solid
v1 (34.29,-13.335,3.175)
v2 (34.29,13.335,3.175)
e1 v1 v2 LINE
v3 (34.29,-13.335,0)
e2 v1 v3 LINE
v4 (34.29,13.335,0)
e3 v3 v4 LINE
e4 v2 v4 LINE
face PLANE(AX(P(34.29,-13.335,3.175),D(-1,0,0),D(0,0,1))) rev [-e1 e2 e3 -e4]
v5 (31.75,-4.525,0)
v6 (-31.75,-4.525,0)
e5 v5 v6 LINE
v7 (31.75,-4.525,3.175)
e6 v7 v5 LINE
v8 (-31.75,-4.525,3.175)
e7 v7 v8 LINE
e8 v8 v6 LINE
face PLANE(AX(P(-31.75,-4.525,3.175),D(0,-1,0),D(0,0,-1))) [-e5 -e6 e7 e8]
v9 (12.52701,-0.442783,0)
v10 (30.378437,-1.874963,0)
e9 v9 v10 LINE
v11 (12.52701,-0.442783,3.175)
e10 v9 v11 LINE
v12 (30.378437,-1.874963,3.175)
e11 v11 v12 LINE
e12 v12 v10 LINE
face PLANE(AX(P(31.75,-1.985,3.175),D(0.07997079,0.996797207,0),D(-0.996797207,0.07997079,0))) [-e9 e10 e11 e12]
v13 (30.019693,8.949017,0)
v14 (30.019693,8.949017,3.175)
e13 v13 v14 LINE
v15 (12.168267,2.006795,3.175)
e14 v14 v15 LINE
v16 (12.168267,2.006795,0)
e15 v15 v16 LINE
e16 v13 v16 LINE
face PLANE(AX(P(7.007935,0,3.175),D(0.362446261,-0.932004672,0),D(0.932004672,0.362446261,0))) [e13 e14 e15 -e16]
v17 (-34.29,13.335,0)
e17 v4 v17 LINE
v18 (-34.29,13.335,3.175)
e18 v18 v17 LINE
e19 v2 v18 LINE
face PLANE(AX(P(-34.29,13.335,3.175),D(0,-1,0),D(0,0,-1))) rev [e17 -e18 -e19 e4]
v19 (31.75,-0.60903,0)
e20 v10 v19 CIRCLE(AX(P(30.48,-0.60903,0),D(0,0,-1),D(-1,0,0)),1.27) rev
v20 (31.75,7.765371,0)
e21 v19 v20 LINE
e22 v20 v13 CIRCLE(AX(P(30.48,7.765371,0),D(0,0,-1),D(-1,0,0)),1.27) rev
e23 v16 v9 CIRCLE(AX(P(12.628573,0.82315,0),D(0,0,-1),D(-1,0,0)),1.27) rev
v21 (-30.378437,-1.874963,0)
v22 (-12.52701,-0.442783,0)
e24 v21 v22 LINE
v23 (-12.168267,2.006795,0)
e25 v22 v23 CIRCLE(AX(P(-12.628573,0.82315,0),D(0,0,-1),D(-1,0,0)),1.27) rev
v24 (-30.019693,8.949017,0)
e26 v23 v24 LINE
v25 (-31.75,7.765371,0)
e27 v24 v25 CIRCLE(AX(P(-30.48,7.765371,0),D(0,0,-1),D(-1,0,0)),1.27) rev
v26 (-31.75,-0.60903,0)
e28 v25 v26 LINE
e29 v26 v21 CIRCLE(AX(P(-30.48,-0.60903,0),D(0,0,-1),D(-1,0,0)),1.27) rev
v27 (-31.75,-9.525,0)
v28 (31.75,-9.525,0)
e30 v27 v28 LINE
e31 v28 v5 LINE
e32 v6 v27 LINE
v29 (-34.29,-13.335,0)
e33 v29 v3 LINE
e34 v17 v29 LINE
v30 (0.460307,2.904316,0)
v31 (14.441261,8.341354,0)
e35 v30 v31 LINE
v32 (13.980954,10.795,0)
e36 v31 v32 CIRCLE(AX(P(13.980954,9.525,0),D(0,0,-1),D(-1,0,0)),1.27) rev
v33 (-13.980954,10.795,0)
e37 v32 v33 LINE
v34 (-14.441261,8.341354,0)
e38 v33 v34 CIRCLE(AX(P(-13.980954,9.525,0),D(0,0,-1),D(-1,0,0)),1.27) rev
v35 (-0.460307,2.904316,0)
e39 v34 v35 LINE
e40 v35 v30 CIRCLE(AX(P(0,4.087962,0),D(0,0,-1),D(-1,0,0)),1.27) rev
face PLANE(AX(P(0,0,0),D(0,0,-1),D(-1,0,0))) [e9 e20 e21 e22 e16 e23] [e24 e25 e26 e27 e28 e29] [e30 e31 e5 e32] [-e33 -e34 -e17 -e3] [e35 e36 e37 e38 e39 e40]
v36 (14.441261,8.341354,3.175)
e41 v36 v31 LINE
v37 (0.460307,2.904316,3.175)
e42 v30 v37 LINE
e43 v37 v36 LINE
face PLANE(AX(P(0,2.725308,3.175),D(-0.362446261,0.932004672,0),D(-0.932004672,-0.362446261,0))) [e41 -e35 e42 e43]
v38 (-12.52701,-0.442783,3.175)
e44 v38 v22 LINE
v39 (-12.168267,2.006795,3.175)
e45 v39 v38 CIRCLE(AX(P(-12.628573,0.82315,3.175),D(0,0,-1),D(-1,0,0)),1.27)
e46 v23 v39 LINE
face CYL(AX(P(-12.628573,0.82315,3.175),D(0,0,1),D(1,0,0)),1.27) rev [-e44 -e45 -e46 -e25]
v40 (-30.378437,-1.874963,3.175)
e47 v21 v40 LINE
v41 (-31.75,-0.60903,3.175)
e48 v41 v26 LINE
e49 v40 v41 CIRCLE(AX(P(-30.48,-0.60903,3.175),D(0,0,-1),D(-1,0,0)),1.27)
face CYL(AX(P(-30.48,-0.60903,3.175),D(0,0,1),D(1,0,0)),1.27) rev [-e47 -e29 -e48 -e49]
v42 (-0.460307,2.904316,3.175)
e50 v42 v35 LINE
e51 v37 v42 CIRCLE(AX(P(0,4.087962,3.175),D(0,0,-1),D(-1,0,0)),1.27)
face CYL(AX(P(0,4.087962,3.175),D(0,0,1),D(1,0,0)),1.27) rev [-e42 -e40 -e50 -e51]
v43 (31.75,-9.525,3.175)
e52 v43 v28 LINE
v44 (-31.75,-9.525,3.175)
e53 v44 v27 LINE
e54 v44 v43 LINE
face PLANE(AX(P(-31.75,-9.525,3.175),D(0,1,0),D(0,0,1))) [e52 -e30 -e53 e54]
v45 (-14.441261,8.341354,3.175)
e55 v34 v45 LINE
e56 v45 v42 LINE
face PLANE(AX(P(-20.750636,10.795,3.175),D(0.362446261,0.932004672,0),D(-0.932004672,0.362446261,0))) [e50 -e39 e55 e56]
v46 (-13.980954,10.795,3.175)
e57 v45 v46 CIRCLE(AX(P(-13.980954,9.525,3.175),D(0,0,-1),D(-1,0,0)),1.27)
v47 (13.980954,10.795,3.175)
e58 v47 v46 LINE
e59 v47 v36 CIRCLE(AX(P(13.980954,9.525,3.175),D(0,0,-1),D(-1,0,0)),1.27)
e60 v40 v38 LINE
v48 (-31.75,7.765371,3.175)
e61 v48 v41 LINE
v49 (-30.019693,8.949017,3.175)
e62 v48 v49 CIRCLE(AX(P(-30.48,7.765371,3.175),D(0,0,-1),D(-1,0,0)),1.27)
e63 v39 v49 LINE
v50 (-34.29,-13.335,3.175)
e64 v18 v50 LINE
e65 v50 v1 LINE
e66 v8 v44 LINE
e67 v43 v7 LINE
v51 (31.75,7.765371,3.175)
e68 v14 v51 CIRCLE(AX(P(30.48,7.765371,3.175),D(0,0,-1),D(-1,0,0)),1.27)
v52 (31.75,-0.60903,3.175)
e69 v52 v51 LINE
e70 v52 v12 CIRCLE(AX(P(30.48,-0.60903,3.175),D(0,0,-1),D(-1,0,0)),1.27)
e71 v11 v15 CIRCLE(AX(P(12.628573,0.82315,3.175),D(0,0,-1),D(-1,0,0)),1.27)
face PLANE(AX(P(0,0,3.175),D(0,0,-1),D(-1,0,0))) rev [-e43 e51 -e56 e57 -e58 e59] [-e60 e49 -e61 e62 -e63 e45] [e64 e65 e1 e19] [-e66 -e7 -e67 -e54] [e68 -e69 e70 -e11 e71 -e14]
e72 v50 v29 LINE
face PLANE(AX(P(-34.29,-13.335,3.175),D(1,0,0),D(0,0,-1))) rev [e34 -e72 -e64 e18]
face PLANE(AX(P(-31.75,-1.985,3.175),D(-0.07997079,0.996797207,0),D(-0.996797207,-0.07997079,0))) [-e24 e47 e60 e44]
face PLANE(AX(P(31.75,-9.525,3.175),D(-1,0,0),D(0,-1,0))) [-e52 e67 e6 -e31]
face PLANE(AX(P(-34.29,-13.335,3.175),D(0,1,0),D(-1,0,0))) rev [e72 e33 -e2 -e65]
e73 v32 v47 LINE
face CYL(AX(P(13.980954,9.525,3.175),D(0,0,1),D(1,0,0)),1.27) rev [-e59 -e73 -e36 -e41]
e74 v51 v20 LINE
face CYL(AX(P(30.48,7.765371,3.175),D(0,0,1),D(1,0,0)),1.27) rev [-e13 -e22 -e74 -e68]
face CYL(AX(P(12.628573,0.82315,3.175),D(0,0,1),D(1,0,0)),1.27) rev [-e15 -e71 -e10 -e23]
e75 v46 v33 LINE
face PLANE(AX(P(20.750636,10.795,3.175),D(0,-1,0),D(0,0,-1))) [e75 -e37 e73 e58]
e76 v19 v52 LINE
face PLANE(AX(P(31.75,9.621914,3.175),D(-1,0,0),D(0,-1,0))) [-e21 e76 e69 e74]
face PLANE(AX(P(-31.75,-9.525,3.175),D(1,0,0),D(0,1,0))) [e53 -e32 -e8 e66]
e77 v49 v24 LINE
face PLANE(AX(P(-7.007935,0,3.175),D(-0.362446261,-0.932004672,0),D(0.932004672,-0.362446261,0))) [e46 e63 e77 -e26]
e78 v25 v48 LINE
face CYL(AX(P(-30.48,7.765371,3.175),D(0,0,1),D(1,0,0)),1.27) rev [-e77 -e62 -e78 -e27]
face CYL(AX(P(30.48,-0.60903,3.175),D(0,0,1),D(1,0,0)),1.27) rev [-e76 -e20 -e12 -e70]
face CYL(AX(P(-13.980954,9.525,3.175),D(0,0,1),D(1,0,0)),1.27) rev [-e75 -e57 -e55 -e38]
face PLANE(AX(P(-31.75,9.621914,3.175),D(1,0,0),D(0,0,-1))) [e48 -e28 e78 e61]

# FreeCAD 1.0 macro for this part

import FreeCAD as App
import Part
import Sketcher

V = App.Vector
Q = App.Units.Quantity


def edges_at(feature, points):
    """Names of the edges that pass closest to the given points."""
    edges = feature.Shape.Edges
    near = lambda p: min(range(len(edges)), key=lambda i: edges[i].distToShape(Part.Vertex(*p))[0])
    return sorted({f"Edge{near(p) + 1}" for p in points})


def add_polygon(sketch, points):
    """Adds a closed chain of lines whose ends are joined by coincident constraints."""
    first, n = sketch.GeometryCount, len(points)
    for a, b in zip(points, points[1:] + points[:1]):
        sketch.addGeometry(Part.LineSegment(App.Vector(*a, 0), App.Vector(*b, 0)), False)
    for i in range(n):
        sketch.addConstraint(Sketcher.Constraint("Coincident", first + i, 2, first + (i + 1) % n, 1))

doc = App.newDocument("Part")
body = doc.addObject("PartDesign::Body", "Body")

sketch1 = body.newObject("Sketcher::SketchObject", "Sketch")
sketch1.AttachmentSupport = (doc.getObject("XY_Plane"), [""])
sketch1.MapMode = "FlatFace"
add_polygon(sketch1, [(-34.29, 13.335), (-34.29, -13.335), (34.29, -13.335), (34.29, 13.335)])
add_polygon(sketch1, [(31.75, -9.525), (-31.75, -9.525), (-31.75, -4.525), (31.75, -4.525)])
add_polygon(sketch1, [(-31.75, -1.985), (-31.75, 9.621914), (-7.007935, 0)])
add_polygon(sketch1, [(31.75, -1.985), (7.007935, 0), (31.75, 9.621914)])
add_polygon(sketch1, [(0, 2.725308), (-20.750636, 10.795), (20.750636, 10.795)])
sketch1.addConstraint([
    Sketcher.Constraint("Vertical", 0),
    Sketcher.Constraint("Horizontal", 1),
    Sketcher.Constraint("Vertical", 2),
    Sketcher.Constraint("Horizontal", 3),
    Sketcher.Constraint("Horizontal", 4),
    Sketcher.Constraint("Vertical", 5),
    Sketcher.Constraint("Horizontal", 6),
    Sketcher.Constraint("Vertical", 7),
    Sketcher.Constraint("Vertical", 8),
    Sketcher.Constraint("Vertical", 13),
    Sketcher.Constraint("Horizontal", 15),
    Sketcher.Constraint("Symmetric", 0, 2, 2, 2, -1, 1),
    Sketcher.Constraint("Symmetric", 9, 2, 11, 2, -1, 1),
    Sketcher.Constraint("Symmetric", 8, 2, 12, 2, -2),
    Sketcher.Constraint("PointOnObject", 9, 2, -1),
    Sketcher.Constraint("PointOnObject", 16, 2, -2),
    Sketcher.Constraint("Parallel", 9, 14),
    Sketcher.Constraint("Parallel", 12, 16),
    Sketcher.Constraint("Horizontal", 10, 2, 13, 2),
    Sketcher.Constraint("Vertical", 5, 2, 8, 2),
    Sketcher.Constraint("Vertical", 7, 2, 12, 2),
    Sketcher.Constraint("DistanceX", 1, 1, 1, 2, Q("2.7 in")),
    Sketcher.Constraint("DistanceX", 4, 2, 4, 1, Q("2.5 in")),
    Sketcher.Constraint("DistanceY", 0, 2, 0, 1, Q("1.05 in")),
    Sketcher.Constraint("DistanceY", 4, 2, 3, 2, Q("0.9 in")),
    Sketcher.Constraint("DistanceY", 5, 2, 10, 2, Q("0.1 in")),
    Sketcher.Constraint("DistanceY", 14, 2, 3, 2, Q("0.1 in")),
    Sketcher.Constraint("DistanceY", 5, 1, 5, 2, Q("5 mm")),
    Sketcher.Constraint("DistanceX", 15, 1, 15, 2, Q("41.501272 mm")),
    Sketcher.Constraint("DistanceX", 14, 2, 9, 2, Q("13.742701 mm")),
    Sketcher.Constraint("Distance", 14, Q("22.264519 mm")),
])
pad1 = body.newObject("PartDesign::Pad", "Pad")
pad1.Profile = sketch1
pad1.Length = Q("0.125 in")
doc.recompute()

fillet = body.newObject("PartDesign::Fillet", "Fillet")
fillet.Base = (pad1, edges_at(pad1, [
    (20.751, 10.795, 1.587),
    (-20.751, 10.795, 1.587),
    (0, 2.725, 1.587),
    (-7.008, 0, 1.587),
    (-31.75, 9.622, 1.587),
    (-31.75, -1.985, 1.587),
    (7.008, 0, 1.587),
    (31.75, -1.985, 1.587),
    (31.75, 9.622, 1.587),
]))
fillet.Radius = Q("0.05 in")

doc.recompute()
